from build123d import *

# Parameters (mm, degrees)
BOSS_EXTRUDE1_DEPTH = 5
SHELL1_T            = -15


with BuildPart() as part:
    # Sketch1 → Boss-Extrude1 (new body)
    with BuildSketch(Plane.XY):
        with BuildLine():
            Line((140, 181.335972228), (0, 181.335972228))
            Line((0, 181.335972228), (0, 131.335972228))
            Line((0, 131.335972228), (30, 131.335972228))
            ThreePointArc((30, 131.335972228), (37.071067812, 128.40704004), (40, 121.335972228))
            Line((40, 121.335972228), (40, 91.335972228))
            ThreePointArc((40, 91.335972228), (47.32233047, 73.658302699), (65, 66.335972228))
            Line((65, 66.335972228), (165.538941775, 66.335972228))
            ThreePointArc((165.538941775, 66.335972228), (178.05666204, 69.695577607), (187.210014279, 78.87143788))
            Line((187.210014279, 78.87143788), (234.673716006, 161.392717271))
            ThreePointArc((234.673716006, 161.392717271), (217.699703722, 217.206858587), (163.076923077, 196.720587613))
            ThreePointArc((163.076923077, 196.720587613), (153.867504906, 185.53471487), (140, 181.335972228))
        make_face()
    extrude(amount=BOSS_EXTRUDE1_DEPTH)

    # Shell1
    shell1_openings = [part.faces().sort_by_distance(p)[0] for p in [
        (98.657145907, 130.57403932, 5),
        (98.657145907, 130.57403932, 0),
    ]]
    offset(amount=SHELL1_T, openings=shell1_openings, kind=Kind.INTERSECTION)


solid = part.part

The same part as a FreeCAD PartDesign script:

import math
import FreeCAD as App
import Part
import Sketcher

V = App.Vector
Q = App.Units.Quantity


def faces_at(feature, points):
    """Names of the faces that lie closest to the given points."""
    faces = feature.Shape.Faces
    near = lambda p: min(range(len(faces)), key=lambda i: faces[i].distToShape(Part.Vertex(*p))[0])
    return sorted({f"Face{near(p) + 1}" for p in points})

doc = App.newDocument("Part")
body = doc.addObject("PartDesign::Body", "Body")

sketch1 = body.newObject("Sketcher::SketchObject", "Sketch")
sketch1.AttachmentSupport = (doc.getObject("XY_Plane"), [""])
sketch1.MapMode = "FlatFace"
sketch1.addGeometry([
    Part.LineSegment(V(140, 181, 0), V(0, 181, 0)),
    Part.LineSegment(V(0, 181, 0), V(0, 131, 0)),
    Part.LineSegment(V(0, 131, 0), V(30, 131, 0)),
    Part.ArcOfCircle(Part.Circle(V(30, 121, 0), V(0, 0, 1), 10), math.radians(0), math.radians(90)),
    Part.LineSegment(V(40, 121, 0), V(40, 91, 0)),
    Part.ArcOfCircle(Part.Circle(V(65, 91, 0), V(0, 0, 1), 25), math.radians(-180), math.radians(-90)),
    Part.LineSegment(V(65, 66, 0), V(166, 66, 0)),
    Part.ArcOfCircle(Part.Circle(V(166, 91, 0), V(0, 0, 1), 25), math.radians(-90), math.radians(-30)),
    Part.LineSegment(V(187, 79, 0), V(235, 161, 0)),
    Part.ArcOfCircle(Part.Circle(V(200, 181, 0), V(0, 0, 1), 40), math.radians(-30), math.radians(157)),
    Part.ArcOfCircle(Part.Circle(V(140, 206, 0), V(0, 0, 1), 25), math.radians(-90), math.radians(-23)),
], False)
sketch1.addConstraint([
    Sketcher.Constraint("Coincident", 0, 2, 1, 1),
    Sketcher.Constraint("Coincident", 1, 2, 2, 1),
    Sketcher.Constraint("Tangent", 2, 2, 3, 2),
    Sketcher.Constraint("Tangent", 3, 1, 4, 1),
    Sketcher.Constraint("Tangent", 4, 2, 5, 1),
    Sketcher.Constraint("Tangent", 5, 2, 6, 1),
    Sketcher.Constraint("Tangent", 6, 2, 7, 1),
    Sketcher.Constraint("Tangent", 7, 2, 8, 1),
    Sketcher.Constraint("Tangent", 8, 2, 9, 1),
    Sketcher.Constraint("Tangent", 9, 2, 10, 2),
    Sketcher.Constraint("Tangent", 10, 1, 0, 1),
    Sketcher.Constraint("Horizontal", 0),
    Sketcher.Constraint("Vertical", 1),
    Sketcher.Constraint("Horizontal", 2),
    Sketcher.Constraint("Vertical", 4),
    Sketcher.Constraint("Horizontal", 6),
    Sketcher.Constraint("Equal", 5, 7),
    Sketcher.Constraint("Equal", 7, 10),
    Sketcher.Constraint("PointOnObject", 0, 2, -2),
    Sketcher.Constraint("Horizontal", 9, 3, 0, 2),
    Sketcher.Constraint("Equal", 2, 4),
    Sketcher.Constraint("Radius", 3, Q("10 mm")),
    Sketcher.Constraint("Radius", 5, Q("25 mm")),
    Sketcher.Constraint("Radius", 9, Q("40 mm")),
    Sketcher.Constraint("DistanceX", 0, 2, 0, 1, Q("140 mm")),
    Sketcher.Constraint("DistanceX", 2, 1, 2, 2, Q("30 mm")),
    Sketcher.Constraint("DistanceY", 1, 2, 1, 1, Q("50 mm")),
    Sketcher.Constraint("DistanceX", 6, 1, 6, 2, Q("100.538942 mm")),
    Sketcher.Constraint("DistanceY", -1, 1, 3, 3, Q("121.335972 mm")),
])
pad1 = body.newObject("PartDesign::Pad", "Pad")
pad1.Profile = sketch1
pad1.Length = 5
doc.recompute()

thickness = body.newObject("PartDesign::Thickness", "Thickness")
thickness.Base = (pad1, faces_at(pad1, [(120, 143.836, 5), (120, 143.836, 0)]))
thickness.Value = 15
thickness.Reversed = True
thickness.Join = "Intersection"

doc.recompute()
